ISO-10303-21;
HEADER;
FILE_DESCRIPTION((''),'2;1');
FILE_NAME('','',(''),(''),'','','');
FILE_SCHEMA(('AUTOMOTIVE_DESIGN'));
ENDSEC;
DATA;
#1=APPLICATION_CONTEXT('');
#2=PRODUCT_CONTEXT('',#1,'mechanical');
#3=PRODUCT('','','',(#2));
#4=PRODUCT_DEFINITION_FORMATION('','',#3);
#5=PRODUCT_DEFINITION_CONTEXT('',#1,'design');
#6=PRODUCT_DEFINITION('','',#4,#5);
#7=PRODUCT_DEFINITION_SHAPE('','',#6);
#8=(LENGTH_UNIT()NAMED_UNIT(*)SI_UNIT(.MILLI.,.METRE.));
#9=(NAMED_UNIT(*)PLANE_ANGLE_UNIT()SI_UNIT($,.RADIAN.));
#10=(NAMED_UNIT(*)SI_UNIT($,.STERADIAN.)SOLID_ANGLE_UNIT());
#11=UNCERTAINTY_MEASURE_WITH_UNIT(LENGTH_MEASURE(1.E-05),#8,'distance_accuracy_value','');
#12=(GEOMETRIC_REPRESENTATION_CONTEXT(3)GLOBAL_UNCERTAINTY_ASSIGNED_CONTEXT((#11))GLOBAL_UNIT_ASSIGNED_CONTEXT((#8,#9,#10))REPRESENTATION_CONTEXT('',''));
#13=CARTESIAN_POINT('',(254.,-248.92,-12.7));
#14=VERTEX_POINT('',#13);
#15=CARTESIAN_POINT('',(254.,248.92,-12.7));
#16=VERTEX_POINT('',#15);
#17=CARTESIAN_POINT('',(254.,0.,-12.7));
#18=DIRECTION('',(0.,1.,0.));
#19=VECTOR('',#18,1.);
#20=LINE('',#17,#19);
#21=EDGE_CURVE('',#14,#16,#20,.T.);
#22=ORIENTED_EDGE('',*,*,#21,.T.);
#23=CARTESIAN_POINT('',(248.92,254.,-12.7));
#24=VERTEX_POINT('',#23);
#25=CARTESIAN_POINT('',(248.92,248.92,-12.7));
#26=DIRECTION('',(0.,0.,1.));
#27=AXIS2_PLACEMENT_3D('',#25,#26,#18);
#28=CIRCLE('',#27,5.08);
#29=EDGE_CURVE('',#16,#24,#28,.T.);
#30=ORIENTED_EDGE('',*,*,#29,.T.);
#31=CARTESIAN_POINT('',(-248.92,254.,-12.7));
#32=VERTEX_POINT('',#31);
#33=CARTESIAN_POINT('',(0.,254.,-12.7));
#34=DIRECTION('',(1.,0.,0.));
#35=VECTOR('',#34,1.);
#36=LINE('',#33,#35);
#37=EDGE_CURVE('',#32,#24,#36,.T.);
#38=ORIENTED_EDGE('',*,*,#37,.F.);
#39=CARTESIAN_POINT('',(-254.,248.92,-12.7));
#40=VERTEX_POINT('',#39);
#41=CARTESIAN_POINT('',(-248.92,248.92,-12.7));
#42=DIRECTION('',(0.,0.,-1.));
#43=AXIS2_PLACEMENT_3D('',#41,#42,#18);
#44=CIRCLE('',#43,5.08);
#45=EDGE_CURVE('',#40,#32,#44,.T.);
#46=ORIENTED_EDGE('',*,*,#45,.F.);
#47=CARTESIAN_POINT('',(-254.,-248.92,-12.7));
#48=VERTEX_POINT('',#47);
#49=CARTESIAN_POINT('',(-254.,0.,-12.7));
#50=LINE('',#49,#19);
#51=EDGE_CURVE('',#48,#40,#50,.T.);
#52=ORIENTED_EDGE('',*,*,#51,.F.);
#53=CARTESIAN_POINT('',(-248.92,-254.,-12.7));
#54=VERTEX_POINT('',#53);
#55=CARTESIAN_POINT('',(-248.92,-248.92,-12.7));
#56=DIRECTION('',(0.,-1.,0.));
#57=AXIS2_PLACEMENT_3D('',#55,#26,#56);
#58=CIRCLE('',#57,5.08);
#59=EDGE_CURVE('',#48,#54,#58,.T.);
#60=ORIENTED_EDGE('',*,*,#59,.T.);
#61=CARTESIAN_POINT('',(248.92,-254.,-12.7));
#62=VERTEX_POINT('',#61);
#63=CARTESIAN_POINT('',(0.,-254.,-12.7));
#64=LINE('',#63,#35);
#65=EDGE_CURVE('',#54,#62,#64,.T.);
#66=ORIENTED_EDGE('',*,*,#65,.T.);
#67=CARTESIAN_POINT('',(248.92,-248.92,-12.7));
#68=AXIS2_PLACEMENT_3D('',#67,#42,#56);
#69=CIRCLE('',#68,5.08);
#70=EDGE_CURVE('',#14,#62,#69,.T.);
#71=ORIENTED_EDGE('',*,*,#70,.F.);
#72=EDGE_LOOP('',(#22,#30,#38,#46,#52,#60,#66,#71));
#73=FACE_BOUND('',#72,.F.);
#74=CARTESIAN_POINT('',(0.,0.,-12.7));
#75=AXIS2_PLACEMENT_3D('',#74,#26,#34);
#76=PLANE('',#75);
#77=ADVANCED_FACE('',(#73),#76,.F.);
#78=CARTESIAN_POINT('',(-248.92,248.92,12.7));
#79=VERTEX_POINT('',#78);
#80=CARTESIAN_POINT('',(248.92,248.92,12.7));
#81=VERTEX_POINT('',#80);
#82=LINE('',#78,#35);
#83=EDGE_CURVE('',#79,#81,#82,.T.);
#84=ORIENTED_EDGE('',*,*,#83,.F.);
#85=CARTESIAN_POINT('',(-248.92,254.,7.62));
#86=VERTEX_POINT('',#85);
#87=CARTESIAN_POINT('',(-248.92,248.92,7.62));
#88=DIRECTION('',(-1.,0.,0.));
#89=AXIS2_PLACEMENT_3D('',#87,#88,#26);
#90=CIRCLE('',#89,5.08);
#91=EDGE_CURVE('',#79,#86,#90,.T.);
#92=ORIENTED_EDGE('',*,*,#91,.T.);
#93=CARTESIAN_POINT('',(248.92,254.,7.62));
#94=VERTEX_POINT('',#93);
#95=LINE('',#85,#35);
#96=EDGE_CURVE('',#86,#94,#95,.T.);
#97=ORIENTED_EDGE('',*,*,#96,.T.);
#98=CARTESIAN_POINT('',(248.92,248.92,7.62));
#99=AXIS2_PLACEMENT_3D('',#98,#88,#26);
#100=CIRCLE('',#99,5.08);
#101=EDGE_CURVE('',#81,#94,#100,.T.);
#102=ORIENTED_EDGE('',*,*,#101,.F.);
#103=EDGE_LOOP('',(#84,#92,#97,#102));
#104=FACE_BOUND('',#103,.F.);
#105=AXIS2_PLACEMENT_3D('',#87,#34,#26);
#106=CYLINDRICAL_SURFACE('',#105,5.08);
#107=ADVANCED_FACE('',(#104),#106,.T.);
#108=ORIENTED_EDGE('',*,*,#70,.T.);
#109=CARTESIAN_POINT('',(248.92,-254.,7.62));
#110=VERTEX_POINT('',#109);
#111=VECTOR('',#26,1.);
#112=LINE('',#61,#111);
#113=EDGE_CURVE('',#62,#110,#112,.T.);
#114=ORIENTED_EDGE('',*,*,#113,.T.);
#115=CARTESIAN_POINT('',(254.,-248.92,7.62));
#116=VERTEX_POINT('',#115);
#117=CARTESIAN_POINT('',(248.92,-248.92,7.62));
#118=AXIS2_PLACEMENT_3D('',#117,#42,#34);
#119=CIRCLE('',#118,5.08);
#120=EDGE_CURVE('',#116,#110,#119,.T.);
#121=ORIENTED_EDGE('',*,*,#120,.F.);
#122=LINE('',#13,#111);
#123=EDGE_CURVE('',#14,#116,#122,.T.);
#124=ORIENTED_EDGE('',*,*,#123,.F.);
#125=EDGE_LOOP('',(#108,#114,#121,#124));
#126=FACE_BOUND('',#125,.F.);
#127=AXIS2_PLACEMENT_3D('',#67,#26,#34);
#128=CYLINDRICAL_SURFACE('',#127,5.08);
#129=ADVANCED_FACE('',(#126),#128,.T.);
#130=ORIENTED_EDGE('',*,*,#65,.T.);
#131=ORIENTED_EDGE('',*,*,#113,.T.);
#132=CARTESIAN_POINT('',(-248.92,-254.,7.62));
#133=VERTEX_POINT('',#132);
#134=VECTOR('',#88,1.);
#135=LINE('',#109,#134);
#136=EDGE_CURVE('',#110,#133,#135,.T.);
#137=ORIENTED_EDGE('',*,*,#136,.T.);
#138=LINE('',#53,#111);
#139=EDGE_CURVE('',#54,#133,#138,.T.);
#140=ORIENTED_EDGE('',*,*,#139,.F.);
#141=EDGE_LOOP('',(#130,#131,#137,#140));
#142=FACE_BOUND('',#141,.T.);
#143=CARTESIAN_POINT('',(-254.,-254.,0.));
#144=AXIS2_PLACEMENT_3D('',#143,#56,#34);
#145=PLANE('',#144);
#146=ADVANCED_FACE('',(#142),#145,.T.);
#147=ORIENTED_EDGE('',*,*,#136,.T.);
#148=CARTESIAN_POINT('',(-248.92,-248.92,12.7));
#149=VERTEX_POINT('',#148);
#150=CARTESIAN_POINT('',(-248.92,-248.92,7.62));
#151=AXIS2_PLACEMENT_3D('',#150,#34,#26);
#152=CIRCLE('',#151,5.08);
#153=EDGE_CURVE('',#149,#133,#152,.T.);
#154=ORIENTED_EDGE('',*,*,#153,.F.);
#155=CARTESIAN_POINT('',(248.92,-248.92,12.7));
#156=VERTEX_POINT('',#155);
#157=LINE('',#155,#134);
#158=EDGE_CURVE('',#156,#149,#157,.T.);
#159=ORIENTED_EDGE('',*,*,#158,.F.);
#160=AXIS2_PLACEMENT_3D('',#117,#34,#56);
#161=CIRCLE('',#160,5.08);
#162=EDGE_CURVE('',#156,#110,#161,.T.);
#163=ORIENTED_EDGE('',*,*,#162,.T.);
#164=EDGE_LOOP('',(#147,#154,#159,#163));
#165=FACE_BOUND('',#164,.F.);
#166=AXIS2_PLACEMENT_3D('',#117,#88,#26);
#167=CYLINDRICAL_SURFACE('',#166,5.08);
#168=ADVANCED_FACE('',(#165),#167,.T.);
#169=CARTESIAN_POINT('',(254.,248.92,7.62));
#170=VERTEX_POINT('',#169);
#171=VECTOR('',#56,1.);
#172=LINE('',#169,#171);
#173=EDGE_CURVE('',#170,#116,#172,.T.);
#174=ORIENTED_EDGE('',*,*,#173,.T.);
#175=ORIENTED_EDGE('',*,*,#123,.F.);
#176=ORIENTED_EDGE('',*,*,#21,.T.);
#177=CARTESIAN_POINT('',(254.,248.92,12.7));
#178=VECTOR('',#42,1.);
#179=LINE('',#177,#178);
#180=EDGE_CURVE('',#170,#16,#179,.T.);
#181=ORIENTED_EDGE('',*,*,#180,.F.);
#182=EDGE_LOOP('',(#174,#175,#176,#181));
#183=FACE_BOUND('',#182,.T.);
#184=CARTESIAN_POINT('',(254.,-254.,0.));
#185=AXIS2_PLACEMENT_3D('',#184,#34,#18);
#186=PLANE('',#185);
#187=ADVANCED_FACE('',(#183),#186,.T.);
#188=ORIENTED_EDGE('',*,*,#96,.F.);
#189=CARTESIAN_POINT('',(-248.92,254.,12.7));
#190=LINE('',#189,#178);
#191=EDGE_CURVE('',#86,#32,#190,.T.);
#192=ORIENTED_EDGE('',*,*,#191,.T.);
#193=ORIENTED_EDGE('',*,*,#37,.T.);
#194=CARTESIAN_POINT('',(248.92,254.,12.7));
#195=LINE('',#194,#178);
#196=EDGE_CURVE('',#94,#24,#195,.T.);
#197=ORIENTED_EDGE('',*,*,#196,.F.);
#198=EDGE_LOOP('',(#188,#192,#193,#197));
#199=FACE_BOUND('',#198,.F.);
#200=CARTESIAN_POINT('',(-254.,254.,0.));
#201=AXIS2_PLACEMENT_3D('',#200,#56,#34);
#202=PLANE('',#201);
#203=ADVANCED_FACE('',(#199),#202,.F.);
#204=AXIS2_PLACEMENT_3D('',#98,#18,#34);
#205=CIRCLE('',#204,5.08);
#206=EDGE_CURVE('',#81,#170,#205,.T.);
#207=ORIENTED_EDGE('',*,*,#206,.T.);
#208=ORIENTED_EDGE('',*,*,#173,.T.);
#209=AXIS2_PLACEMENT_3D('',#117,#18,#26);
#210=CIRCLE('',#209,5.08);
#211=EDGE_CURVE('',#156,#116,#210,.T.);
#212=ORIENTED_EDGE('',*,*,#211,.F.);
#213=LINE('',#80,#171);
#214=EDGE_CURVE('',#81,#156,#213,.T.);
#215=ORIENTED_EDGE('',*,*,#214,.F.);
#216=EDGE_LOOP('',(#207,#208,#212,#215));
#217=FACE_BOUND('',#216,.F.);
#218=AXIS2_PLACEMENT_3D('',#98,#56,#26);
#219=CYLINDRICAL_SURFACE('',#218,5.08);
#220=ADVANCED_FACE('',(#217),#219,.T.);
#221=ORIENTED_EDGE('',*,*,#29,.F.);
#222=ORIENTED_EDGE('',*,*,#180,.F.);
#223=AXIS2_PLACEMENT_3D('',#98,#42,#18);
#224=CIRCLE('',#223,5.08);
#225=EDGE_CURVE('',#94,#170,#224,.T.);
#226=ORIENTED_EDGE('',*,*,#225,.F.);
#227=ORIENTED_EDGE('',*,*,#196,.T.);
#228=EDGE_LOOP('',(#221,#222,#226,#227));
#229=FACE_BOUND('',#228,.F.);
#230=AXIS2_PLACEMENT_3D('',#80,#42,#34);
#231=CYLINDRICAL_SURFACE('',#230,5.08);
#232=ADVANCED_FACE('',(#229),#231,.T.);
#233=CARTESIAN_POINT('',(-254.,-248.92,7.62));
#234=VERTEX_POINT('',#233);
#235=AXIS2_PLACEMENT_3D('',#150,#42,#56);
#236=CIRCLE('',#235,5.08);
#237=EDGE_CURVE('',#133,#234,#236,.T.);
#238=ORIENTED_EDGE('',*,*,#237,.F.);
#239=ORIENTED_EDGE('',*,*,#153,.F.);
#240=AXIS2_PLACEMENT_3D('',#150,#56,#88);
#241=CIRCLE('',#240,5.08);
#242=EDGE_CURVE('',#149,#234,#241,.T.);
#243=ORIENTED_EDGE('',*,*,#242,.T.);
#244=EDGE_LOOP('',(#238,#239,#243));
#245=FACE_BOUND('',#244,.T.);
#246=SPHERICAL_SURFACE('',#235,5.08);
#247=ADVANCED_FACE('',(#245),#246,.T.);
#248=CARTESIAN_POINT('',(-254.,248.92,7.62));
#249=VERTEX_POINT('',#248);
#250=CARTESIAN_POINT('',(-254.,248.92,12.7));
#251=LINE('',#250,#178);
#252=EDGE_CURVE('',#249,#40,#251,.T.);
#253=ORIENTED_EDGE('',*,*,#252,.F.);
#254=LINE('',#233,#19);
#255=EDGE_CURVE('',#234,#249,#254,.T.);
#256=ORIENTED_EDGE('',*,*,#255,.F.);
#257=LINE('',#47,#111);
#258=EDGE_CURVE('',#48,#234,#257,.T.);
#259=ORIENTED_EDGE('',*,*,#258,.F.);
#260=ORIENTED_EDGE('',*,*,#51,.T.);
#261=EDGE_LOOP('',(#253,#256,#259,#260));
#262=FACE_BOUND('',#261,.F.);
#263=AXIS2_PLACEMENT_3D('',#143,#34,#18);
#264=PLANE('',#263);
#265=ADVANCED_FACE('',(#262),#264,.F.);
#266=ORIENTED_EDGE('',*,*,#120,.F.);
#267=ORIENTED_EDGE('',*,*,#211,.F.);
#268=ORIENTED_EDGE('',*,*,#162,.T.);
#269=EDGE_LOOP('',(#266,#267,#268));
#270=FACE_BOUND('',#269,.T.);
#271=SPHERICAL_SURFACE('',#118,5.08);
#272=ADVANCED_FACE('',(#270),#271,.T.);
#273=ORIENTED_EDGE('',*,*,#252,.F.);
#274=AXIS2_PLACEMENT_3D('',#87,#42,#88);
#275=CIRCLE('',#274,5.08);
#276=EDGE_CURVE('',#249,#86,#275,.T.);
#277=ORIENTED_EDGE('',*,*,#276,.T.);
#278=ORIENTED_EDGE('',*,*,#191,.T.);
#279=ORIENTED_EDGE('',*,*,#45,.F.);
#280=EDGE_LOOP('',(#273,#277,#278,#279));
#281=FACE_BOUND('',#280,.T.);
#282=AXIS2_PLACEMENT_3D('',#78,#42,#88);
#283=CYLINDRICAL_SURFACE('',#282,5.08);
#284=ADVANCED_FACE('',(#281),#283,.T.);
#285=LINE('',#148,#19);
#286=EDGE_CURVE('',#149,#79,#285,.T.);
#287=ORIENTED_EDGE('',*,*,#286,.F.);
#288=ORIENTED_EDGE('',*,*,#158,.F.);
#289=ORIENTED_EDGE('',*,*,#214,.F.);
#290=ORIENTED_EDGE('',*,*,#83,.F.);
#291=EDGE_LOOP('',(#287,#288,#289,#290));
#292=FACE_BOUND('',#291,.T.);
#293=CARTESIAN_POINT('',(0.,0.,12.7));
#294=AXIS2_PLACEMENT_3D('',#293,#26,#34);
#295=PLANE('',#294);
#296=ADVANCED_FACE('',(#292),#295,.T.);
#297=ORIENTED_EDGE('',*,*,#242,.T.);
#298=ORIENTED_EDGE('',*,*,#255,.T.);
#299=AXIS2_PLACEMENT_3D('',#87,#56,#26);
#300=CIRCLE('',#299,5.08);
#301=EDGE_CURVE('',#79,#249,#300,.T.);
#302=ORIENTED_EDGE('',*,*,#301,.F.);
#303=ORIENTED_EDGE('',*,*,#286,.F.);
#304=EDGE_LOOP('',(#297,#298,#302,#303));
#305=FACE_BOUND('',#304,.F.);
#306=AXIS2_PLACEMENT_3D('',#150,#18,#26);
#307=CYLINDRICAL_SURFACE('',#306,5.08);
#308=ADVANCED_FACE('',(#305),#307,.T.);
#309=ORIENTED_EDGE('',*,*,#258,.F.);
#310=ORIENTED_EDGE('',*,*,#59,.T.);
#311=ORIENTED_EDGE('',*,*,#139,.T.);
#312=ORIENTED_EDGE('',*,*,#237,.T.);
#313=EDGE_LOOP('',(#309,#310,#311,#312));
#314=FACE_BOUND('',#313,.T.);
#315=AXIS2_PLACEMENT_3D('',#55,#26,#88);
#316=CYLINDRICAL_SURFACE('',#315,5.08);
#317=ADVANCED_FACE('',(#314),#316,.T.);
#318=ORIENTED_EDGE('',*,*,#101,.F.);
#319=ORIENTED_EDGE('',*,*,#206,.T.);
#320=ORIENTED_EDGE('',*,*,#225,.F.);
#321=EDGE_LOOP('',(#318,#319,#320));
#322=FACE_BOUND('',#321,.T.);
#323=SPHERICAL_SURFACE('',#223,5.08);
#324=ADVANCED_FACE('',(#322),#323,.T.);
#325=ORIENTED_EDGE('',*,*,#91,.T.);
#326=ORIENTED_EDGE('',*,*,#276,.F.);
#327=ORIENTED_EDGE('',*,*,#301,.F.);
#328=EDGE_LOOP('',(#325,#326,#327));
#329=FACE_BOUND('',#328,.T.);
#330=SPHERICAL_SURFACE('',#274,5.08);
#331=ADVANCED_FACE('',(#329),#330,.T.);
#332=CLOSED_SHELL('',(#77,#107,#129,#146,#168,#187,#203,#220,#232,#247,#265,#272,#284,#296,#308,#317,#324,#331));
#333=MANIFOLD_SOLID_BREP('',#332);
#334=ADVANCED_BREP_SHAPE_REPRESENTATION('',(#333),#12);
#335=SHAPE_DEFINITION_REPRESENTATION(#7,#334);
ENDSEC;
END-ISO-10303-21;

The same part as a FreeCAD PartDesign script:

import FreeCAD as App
import Part
import Sketcher

V = App.Vector
Q = App.Units.Quantity


def edges_at(feature, points):
    """Names of the edges that pass closest to the given points."""
    edges = feature.Shape.Edges
    near = lambda p: min(range(len(edges)), key=lambda i: edges[i].distToShape(Part.Vertex(*p))[0])
    return sorted({f"Edge{near(p) + 1}" for p in points})


def add_polygon(sketch, points):
    """Adds a closed chain of lines whose ends are joined by coincident constraints."""
    first, n = sketch.GeometryCount, len(points)
    for a, b in zip(points, points[1:] + points[:1]):
        sketch.addGeometry(Part.LineSegment(App.Vector(*a, 0), App.Vector(*b, 0)), False)
    for i in range(n):
        sketch.addConstraint(Sketcher.Constraint("Coincident", first + i, 2, first + (i + 1) % n, 1))

doc = App.newDocument("Part")
params = doc.addObject("Spreadsheet::Sheet", "Params")
for row, (alias, value) in enumerate([
    ("sketch1_width", "20 in"),
    ("pad1_length", "1 in"),
    ("fillet_radius", "0.2 in"),
    ("fillet2_radius", "0.2 in"),
], start=1):
    params.set(f"A{row}", alias)
    params.set(f"B{row}", "=" + value)
    params.setAlias(f"B{row}", alias)

body = doc.addObject("PartDesign::Body", "Body")

sketch1 = body.newObject("Sketcher::SketchObject", "Sketch")
sketch1.AttachmentSupport = (doc.getObject("XY_Plane"), [""])
sketch1.MapMode = "FlatFace"
add_polygon(sketch1, [(-254, 254), (-254, -254), (254, -254), (254, 254)])
sketch1.addConstraint([
    Sketcher.Constraint("Vertical", 0),
    Sketcher.Constraint("Horizontal", 1),
    Sketcher.Constraint("Vertical", 2),
    Sketcher.Constraint("Horizontal", 3),
    Sketcher.Constraint("Symmetric", 0, 2, 2, 2, -1, 1),
    Sketcher.Constraint("Equal", 3, 0),
    Sketcher.Constraint("DistanceX", 1, 1, 1, 2, Q("20 in")),
])
sketch1.setExpression("Constraints[10]", "Params.sketch1_width")
pad1 = body.newObject("PartDesign::Pad", "Pad")
pad1.Profile = sketch1
pad1.setExpression("Length", "Params.pad1_length")
pad1.Midplane = True
doc.recompute()

fillet = body.newObject("PartDesign::Fillet", "Fillet")
fillet.Base = (pad1, edges_at(pad1, [
    (-254, -254, 0),
    (254, -254, 0),
    (254, 254, 0),
    (-254, 254, 0),
]))
fillet.setExpression("Radius", "Params.fillet_radius")
doc.recompute()

fillet2 = body.newObject("PartDesign::Fillet", "Fillet001")
fillet2.Base = (fillet, edges_at(fillet, [
    (0, 254, 12.7),
    (252.512, 252.512, 12.7),
    (-252.512, 252.512, 12.7),
    (254, 0, 12.7),
    (-254, 0, 12.7),
    (252.512, -252.512, 12.7),
    (-252.512, -252.512, 12.7),
    (0, -254, 12.7),
]))
fillet2.setExpression("Radius", "Params.fillet2_radius")

doc.recompute()
